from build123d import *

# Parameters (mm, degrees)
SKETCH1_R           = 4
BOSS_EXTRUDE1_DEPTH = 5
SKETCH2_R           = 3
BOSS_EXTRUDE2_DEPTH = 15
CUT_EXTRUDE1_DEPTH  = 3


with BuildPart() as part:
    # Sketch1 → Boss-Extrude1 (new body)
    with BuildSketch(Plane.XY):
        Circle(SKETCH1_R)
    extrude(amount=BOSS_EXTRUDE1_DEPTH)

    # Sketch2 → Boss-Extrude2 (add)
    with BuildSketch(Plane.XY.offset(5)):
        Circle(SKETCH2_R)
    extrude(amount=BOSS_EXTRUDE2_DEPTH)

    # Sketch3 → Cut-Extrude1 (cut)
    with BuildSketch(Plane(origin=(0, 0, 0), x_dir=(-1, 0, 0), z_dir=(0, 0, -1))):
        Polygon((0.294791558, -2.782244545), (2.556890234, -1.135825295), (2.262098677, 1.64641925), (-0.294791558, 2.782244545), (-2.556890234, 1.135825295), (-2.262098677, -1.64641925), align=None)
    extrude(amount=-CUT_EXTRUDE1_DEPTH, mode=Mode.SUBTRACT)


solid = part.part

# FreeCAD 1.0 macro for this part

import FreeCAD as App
import Part
import Sketcher

V = App.Vector

doc = App.newDocument("Part")
body = doc.addObject("PartDesign::Body", "Body")

sketch1 = doc.addObject("Sketcher::SketchObject", "Sketch")
body.addObject(sketch1)
sketch1.AttachmentSupport = (doc.XY_Plane, [""])
sketch1.MapMode = "FlatFace"
sketch1.addGeometry(Part.Circle(V(0, 0, 0), V(0, 0, 1), 4), False)
sketch1.addConstraint([
    Sketcher.Constraint("Coincident", 0, 3, -1, 1),
    Sketcher.Constraint("Diameter", 0, 8.0),
])
pad1 = doc.addObject("PartDesign::Pad", "Pad")
body.addObject(pad1)
pad1.Profile = sketch1
pad1.Length = 5

sketch2 = doc.addObject("Sketcher::SketchObject", "Sketch001")
body.addObject(sketch2)
sketch2.AttachmentSupport = (doc.XY_Plane, [""])
sketch2.MapMode = "FlatFace"
sketch2.AttachmentOffset = App.Placement(V(0, 0, 5), App.Rotation())
sketch2.addGeometry(Part.Circle(V(0, 0, 0), V(0, 0, 1), 3), False)
sketch2.addConstraint([
    Sketcher.Constraint("Coincident", 0, 3, -1, 1),
    Sketcher.Constraint("Diameter", 0, 6.0),
])
pad2 = doc.addObject("PartDesign::Pad", "Pad001")
body.addObject(pad2)
pad2.Profile = sketch2
pad2.Length = 15

sketch3 = doc.addObject("Sketcher::SketchObject", "Sketch002")
body.addObject(sketch3)
sketch3.AttachmentSupport = (doc.XY_Plane, [""])
sketch3.MapMode = "FlatFace"
sketch3.addGeometry([
    Part.LineSegment(V(-0.3, -2.8, 0), V(-2.6, -1.1, 0)),
    Part.LineSegment(V(-2.6, -1.1, 0), V(-2.3, 1.6, 0)),
    Part.LineSegment(V(-2.3, 1.6, 0), V(0.3, 2.8, 0)),
    Part.LineSegment(V(0.3, 2.8, 0), V(2.6, 1.1, 0)),
    Part.LineSegment(V(2.6, 1.1, 0), V(2.3, -1.6, 0)),
    Part.LineSegment(V(2.3, -1.6, 0), V(-0.3, -2.8, 0)),
], False)
sketch3.addConstraint([
    Sketcher.Constraint("Coincident", 0, 2, 1, 1),
    Sketcher.Constraint("Coincident", 1, 2, 2, 1),
    Sketcher.Constraint("Coincident", 2, 2, 3, 1),
    Sketcher.Constraint("Coincident", 3, 2, 4, 1),
    Sketcher.Constraint("Coincident", 4, 2, 5, 1),
    Sketcher.Constraint("Coincident", 5, 2, 0, 1),
    Sketcher.Constraint("Symmetric", 0, 2, 3, 2, -1, 1),
    Sketcher.Constraint("Symmetric", 1, 2, 4, 2, -1, 1),
    Sketcher.Constraint("Symmetric", 2, 2, 5, 2, -1, 1),
    Sketcher.Constraint("Equal", 0, 1),
    Sketcher.Constraint("Equal", 1, 2),
    Sketcher.Constraint("DistanceX", 1, 2, -1, 1, 2.262099),
    Sketcher.Constraint("DistanceX", 2, 2, 3, 2, 2.262099),
    Sketcher.Constraint("Distance", 0, 2.797818),
    Sketcher.Constraint("DistanceX", 0, 2, -1, 1, 2.55689),
])
pocket1 = doc.addObject("PartDesign::Pocket", "Pocket")
body.addObject(pocket1)
pocket1.Profile = sketch3
pocket1.Length = 3
pocket1.Reversed = True

doc.recompute()
